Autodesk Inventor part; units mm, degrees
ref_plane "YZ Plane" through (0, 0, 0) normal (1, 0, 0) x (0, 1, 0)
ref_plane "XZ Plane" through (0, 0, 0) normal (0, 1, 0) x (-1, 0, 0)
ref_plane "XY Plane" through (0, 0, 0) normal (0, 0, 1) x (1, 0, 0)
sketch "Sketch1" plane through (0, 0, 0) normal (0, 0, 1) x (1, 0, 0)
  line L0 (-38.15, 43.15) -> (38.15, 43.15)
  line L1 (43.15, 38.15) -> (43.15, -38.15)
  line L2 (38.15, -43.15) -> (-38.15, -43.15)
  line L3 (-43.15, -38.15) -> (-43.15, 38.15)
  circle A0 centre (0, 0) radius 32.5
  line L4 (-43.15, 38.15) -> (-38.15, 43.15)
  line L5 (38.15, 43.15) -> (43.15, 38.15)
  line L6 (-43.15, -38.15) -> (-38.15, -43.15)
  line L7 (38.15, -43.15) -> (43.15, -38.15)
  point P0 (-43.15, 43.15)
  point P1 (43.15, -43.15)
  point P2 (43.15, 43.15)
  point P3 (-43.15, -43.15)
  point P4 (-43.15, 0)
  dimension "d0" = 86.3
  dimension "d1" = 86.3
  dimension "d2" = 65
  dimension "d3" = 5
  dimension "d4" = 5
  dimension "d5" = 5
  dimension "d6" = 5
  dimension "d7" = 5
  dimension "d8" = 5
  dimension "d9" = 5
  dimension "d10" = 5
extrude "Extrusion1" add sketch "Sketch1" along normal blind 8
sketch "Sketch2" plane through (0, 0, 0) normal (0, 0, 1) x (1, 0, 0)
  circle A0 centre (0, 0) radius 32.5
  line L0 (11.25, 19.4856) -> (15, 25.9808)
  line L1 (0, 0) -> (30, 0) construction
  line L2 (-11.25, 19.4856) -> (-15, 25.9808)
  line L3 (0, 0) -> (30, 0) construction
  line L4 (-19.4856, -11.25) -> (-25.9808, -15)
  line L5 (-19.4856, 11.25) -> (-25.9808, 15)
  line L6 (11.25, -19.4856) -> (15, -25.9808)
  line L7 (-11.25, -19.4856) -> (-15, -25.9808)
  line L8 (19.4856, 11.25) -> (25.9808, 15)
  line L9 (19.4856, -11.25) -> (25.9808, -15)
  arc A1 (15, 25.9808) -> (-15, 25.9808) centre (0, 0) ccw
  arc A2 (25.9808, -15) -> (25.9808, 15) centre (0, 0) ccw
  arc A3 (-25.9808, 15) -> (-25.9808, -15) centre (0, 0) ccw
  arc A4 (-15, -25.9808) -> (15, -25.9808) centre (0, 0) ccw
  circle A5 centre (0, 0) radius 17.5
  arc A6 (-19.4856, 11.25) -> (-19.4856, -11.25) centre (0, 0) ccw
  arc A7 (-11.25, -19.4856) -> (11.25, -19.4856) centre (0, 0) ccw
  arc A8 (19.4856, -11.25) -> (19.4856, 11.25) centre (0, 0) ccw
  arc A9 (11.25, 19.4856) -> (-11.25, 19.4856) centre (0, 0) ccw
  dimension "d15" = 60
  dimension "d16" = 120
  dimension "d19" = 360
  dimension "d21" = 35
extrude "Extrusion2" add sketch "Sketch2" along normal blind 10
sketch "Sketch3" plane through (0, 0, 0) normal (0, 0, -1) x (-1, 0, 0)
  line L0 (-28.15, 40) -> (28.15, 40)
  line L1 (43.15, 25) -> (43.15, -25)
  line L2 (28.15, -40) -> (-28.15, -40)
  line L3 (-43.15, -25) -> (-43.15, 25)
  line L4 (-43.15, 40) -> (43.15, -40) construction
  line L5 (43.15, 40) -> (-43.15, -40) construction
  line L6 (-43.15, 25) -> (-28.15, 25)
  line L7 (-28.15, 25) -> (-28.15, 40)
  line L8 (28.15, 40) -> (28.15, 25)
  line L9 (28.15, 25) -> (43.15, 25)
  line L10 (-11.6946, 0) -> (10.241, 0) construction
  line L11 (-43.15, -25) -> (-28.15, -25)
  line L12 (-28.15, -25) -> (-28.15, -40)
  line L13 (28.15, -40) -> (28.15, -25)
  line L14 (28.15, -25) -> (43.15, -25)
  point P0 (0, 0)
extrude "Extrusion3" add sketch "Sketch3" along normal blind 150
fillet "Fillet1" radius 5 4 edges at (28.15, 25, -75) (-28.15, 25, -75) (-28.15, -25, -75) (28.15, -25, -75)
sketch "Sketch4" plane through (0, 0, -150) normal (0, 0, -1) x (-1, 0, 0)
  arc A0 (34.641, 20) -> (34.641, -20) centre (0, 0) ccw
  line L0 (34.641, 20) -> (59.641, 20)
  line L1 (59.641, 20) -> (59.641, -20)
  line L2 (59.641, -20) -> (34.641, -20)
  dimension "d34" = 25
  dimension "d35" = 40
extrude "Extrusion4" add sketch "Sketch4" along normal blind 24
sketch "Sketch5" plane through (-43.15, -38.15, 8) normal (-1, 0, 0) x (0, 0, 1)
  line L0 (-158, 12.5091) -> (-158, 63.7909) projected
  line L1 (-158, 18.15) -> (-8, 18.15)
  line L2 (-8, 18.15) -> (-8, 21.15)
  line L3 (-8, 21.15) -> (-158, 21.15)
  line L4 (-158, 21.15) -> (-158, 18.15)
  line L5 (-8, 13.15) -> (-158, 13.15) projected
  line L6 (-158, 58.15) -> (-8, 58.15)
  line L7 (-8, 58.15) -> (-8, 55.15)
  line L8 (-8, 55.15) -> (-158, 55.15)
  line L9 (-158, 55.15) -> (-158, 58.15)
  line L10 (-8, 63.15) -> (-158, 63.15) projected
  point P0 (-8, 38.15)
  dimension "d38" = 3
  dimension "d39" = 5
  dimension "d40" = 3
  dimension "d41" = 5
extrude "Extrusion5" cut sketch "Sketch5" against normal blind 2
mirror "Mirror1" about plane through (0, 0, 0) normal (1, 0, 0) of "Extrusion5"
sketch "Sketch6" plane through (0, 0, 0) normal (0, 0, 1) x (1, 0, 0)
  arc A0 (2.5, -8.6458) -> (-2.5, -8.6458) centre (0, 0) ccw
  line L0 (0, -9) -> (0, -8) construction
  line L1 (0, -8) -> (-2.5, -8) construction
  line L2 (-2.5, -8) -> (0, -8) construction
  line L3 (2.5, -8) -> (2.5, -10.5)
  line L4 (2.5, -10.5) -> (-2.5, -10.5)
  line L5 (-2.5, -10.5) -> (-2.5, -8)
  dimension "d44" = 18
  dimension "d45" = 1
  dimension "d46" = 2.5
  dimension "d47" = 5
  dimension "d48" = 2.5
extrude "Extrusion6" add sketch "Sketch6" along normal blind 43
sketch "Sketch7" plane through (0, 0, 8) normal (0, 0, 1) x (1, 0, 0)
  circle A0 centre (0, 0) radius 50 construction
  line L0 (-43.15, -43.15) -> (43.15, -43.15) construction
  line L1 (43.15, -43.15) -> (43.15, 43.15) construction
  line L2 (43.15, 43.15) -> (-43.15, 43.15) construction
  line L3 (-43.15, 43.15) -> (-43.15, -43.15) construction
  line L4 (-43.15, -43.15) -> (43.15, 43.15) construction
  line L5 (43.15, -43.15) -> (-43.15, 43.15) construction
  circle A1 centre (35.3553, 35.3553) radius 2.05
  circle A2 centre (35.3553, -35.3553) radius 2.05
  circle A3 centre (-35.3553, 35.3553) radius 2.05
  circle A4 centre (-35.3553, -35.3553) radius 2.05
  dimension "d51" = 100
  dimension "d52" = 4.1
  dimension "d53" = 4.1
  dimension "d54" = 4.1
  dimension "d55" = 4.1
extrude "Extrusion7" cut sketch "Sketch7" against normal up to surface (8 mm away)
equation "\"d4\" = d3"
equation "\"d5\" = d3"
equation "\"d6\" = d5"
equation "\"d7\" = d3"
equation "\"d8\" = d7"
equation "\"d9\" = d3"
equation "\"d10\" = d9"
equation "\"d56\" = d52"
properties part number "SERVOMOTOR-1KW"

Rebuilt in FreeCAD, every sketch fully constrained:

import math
import FreeCAD as App
import Part
import Sketcher
from FreeCAD import Vector
Q = App.Units.Quantity


def edges_at(feature, points):
    """Names of the edges that pass closest to the given points."""
    edges = feature.Shape.Edges
    near = lambda p: min(range(len(edges)), key=lambda i: edges[i].distToShape(Part.Vertex(*p))[0])
    return sorted({f"Edge{near(p) + 1}" for p in points})

doc = App.newDocument("Part")
params = doc.addObject("Spreadsheet::Sheet", "Params")
for row, (alias, value) in enumerate([
    ("sketch1_diameter", "65 mm"),
    ("pad1_length", "8 mm"),
    ("sketch2_diameter", "35 mm"),
    ("sketch2_radius", "30 mm"),
    ("sketch2_diameter2", "65 mm"),
    ("sketch2_radius2", "22.5 mm"),
    ("pad2_length", "10 mm"),
    ("sketch3_width", "15 mm"),
    ("sketch3_height", "50 mm"),
    ("sketch3_width2", "56.3 mm"),
    ("pad3_length", "150 mm"),
    ("fillet_radius", "5 mm"),
    ("sketch4_radius", "40 mm"),
    ("sketch4_width", "25 mm"),
    ("sketch4_height", "40 mm"),
    ("pad4_length", "24 mm"),
    ("sketch5_width", "3 mm"),
    ("sketch5_height", "150 mm"),
    ("pocket1_length", "2 mm"),
    ("sketch6_radius", "9 mm"),
    ("sketch6_width", "5 mm"),
    ("pad5_length", "43 mm"),
    ("sketch7_diameter", "4.1 mm"),
    ("pocket2_length", "8 mm"),
], start=1):
    params.set(f"A{row}", alias)
    params.set(f"B{row}", "=" + value)
    params.setAlias(f"B{row}", alias)

body = doc.addObject("PartDesign::Body", "Body")

sketch1 = body.newObject("Sketcher::SketchObject", "Sketch")
sketch1.AttachmentSupport = (doc.getObject("XY_Plane"), [""])
sketch1.MapMode = "FlatFace"
sketch1.addGeometry([
    Part.LineSegment(Vector(38.15, 43.15, 0), Vector(-38.15, 43.15, 0)),
    Part.LineSegment(Vector(-38.15, 43.15, 0), Vector(-43.15, 38.15, 0)),
    Part.LineSegment(Vector(-43.15, 38.15, 0), Vector(-43.15, -38.15, 0)),
    Part.LineSegment(Vector(-43.15, -38.15, 0), Vector(-38.15, -43.15, 0)),
    Part.LineSegment(Vector(-38.15, -43.15, 0), Vector(38.15, -43.15, 0)),
    Part.LineSegment(Vector(38.15, -43.15, 0), Vector(43.15, -38.15, 0)),
    Part.LineSegment(Vector(43.15, -38.15, 0), Vector(43.15, 38.15, 0)),
    Part.LineSegment(Vector(43.15, 38.15, 0), Vector(38.15, 43.15, 0)),
    Part.Circle(Vector(0, 0, 0), Vector(0, 0, 1), 32.5),
], False)
sketch1.addConstraint([
    Sketcher.Constraint("Coincident", 0, 2, 1, 1),
    Sketcher.Constraint("Coincident", 1, 2, 2, 1),
    Sketcher.Constraint("Coincident", 2, 2, 3, 1),
    Sketcher.Constraint("Coincident", 3, 2, 4, 1),
    Sketcher.Constraint("Coincident", 4, 2, 5, 1),
    Sketcher.Constraint("Coincident", 5, 2, 6, 1),
    Sketcher.Constraint("Coincident", 6, 2, 7, 1),
    Sketcher.Constraint("Coincident", 7, 2, 0, 1),
    Sketcher.Constraint("Horizontal", 0),
    Sketcher.Constraint("Vertical", 2),
    Sketcher.Constraint("Horizontal", 4),
    Sketcher.Constraint("Vertical", 6),
    Sketcher.Constraint("Coincident", 8, 3, -1, 1),
    Sketcher.Constraint("Symmetric", 0, 2, 4, 2, -1, 1),
    Sketcher.Constraint("Symmetric", 1, 2, 5, 2, -1, 1),
    Sketcher.Constraint("Perpendicular", 1, 3),
    Sketcher.Constraint("Perpendicular", 5, 7),
    Sketcher.Constraint("Horizontal", 2, 2, 5, 2),
    Sketcher.Constraint("Horizontal", 1, 2, 6, 2),
    Sketcher.Constraint("Vertical", 0, 2, 3, 2),
    Sketcher.Constraint("Equal", 4, 2),
    Sketcher.Constraint("Diameter", 8, 65.0),
    Sketcher.Constraint("DistanceX", 1, 2, 0, 2, 5.0),
    Sketcher.Constraint("DistanceY", 3, 2, 0, 2, 86.3),
])
sketch1.setExpression("Constraints[21]", "Params.sketch1_diameter")
pad1 = body.newObject("PartDesign::Pad", "Pad")
pad1.Profile = sketch1
pad1.setExpression("Length", "Params.pad1_length")

sketch2 = body.newObject("Sketcher::SketchObject", "Sketch001")
sketch2.AttachmentSupport = (doc.getObject("XY_Plane"), [""])
sketch2.MapMode = "FlatFace"
sketch2.addGeometry([
    Part.Circle(Vector(0, 0, 0), Vector(0, 0, 1), 32.5),
    Part.ArcOfCircle(Part.Circle(Vector(0, 0, 0), Vector(0, 0, 1), 22.500025), math.radians(-119.999964), math.radians(-60.000036)),
    Part.LineSegment(Vector(11.25, -19.4856, 0), Vector(15, -25.9808, 0)),
    Part.ArcOfCircle(Part.Circle(Vector(0, 0, 0), Vector(0, 0, 1), 30.000033), math.radians(-119.999964), math.radians(-60.000036)),
    Part.LineSegment(Vector(-15, -25.9808, 0), Vector(-11.25, -19.4856, 0)),
    Part.ArcOfCircle(Part.Circle(Vector(0, 0, 0), Vector(0, 0, 1), 22.500025), math.radians(150.000036), math.radians(209.999964)),
    Part.LineSegment(Vector(-19.4856, -11.25, 0), Vector(-25.9808, -15, 0)),
    Part.ArcOfCircle(Part.Circle(Vector(0, 0, 0), Vector(0, 0, 1), 30.000033), math.radians(150.000036), math.radians(209.999964)),
    Part.LineSegment(Vector(-25.9808, 15, 0), Vector(-19.4856, 11.25, 0)),
    Part.Circle(Vector(0, 0, 0), Vector(0, 0, 1), 17.5),
    Part.ArcOfCircle(Part.Circle(Vector(0, 0, 0), Vector(0, 0, 1), 22.500025), math.radians(-29.999964), math.radians(29.999964)),
    Part.LineSegment(Vector(19.4856, 11.25, 0), Vector(25.9808, 15, 0)),
    Part.ArcOfCircle(Part.Circle(Vector(0, 0, 0), Vector(0, 0, 1), 30.000033), math.radians(-29.999964), math.radians(29.999964)),
    Part.LineSegment(Vector(25.9808, -15, 0), Vector(19.4856, -11.25, 0)),
    Part.LineSegment(Vector(15, 25.9808, 0), Vector(11.25, 19.4856, 0)),
    Part.ArcOfCircle(Part.Circle(Vector(0, 0, 0), Vector(0, 0, 1), 22.500025), math.radians(60.000036), math.radians(119.999964)),
    Part.LineSegment(Vector(-11.25, 19.4856, 0), Vector(-15, 25.9808, 0)),
    Part.ArcOfCircle(Part.Circle(Vector(0, 0, 0), Vector(0, 0, 1), 30.000033), math.radians(60.000036), math.radians(119.999964)),
], False)
sketch2.addConstraint([
    Sketcher.Constraint("Coincident", 1, 2, 2, 1),
    Sketcher.Constraint("Coincident", 2, 2, 3, 2),
    Sketcher.Constraint("Coincident", 3, 1, 4, 1),
    Sketcher.Constraint("Coincident", 4, 2, 1, 1),
    Sketcher.Constraint("Coincident", 5, 2, 6, 1),
    Sketcher.Constraint("Coincident", 6, 2, 7, 2),
    Sketcher.Constraint("Coincident", 7, 1, 8, 1),
    Sketcher.Constraint("Coincident", 8, 2, 5, 1),
    Sketcher.Constraint("Coincident", 10, 2, 11, 1),
    Sketcher.Constraint("Coincident", 11, 2, 12, 2),
    Sketcher.Constraint("Coincident", 12, 1, 13, 1),
    Sketcher.Constraint("Coincident", 13, 2, 10, 1),
    Sketcher.Constraint("Coincident", 14, 2, 15, 1),
    Sketcher.Constraint("Coincident", 15, 2, 16, 1),
    Sketcher.Constraint("Coincident", 16, 2, 17, 2),
    Sketcher.Constraint("Coincident", 17, 1, 14, 1),
    Sketcher.Constraint("Coincident", 0, 3, -1, 1),
    Sketcher.Constraint("Coincident", 1, 3, -1, 1),
    Sketcher.Constraint("Coincident", 3, 3, -1, 1),
    Sketcher.Constraint("Coincident", 5, 3, -1, 1),
    Sketcher.Constraint("Coincident", 7, 3, -1, 1),
    Sketcher.Constraint("Coincident", 9, 3, -1, 1),
    Sketcher.Constraint("Coincident", 10, 3, -1, 1),
    Sketcher.Constraint("Coincident", 12, 3, -1, 1),
    Sketcher.Constraint("Coincident", 15, 3, -1, 1),
    Sketcher.Constraint("Coincident", 17, 3, -1, 1),
    Sketcher.Constraint("Equal", 1, 5),
    Sketcher.Constraint("Equal", 3, 7),
    Sketcher.Constraint("Equal", 5, 10),
    Sketcher.Constraint("Equal", 7, 12),
    Sketcher.Constraint("Equal", 10, 15),
    Sketcher.Constraint("Equal", 12, 17),
    Sketcher.Constraint("Perpendicular", 2, 6),
    Sketcher.Constraint("Perpendicular", 4, 8),
    Sketcher.Constraint("Parallel", 6, 11),
    Sketcher.Constraint("Parallel", 8, 13),
    Sketcher.Constraint("Perpendicular", 13, 14),
    Sketcher.Constraint("Perpendicular", 11, 16),
    Sketcher.Constraint("Horizontal", 2, 2, 3, 1),
    Sketcher.Constraint("Horizontal", 1, 2, 4, 2),
    Sketcher.Constraint("Horizontal", 8, 2, 10, 2),
    Sketcher.Constraint("Horizontal", 6, 2, 12, 1),
    Sketcher.Constraint("Horizontal", 14, 2, 15, 2),
    Sketcher.Constraint("Vertical", 6, 2, 7, 1),
    Sketcher.Constraint("Vertical", 1, 2, 14, 2),
    Sketcher.Constraint("Diameter", 9, 35.0),
    Sketcher.Constraint("Radius", 3, 30.0),
    Sketcher.Constraint("Angle", 2, Q("-60 deg")),
    Sketcher.Constraint("Diameter", 0, 65.0),
    Sketcher.Constraint("Radius", 1, 22.5),
    Sketcher.Constraint("DistanceX", -1, 1, 2, 2, 15.0),
    Sketcher.Constraint("DistanceY", 6, 2, -1, 1, 15.0),
])
sketch2.setExpression("Constraints[45]", "Params.sketch2_diameter")
sketch2.setExpression("Constraints[46]", "Params.sketch2_radius")
sketch2.setExpression("Constraints[48]", "Params.sketch2_diameter2")
sketch2.setExpression("Constraints[49]", "Params.sketch2_radius2")
pad2 = body.newObject("PartDesign::Pad", "Pad001")
pad2.Profile = sketch2
pad2.setExpression("Length", "Params.pad2_length")

sketch3 = body.newObject("Sketcher::SketchObject", "Sketch002")
sketch3.AttachmentSupport = (doc.getObject("XY_Plane"), [""])
sketch3.MapMode = "FlatFace"
sketch3.addGeometry([
    Part.LineSegment(Vector(-28.15, 40, 0), Vector(28.15, 40, 0)),
    Part.LineSegment(Vector(28.15, 40, 0), Vector(28.15, 25, 0)),
    Part.LineSegment(Vector(28.15, 25, 0), Vector(43.15, 25, 0)),
    Part.LineSegment(Vector(43.15, 25, 0), Vector(43.15, -25, 0)),
    Part.LineSegment(Vector(43.15, -25, 0), Vector(28.15, -25, 0)),
    Part.LineSegment(Vector(28.15, -25, 0), Vector(28.15, -40, 0)),
    Part.LineSegment(Vector(28.15, -40, 0), Vector(-28.15, -40, 0)),
    Part.LineSegment(Vector(-28.15, -40, 0), Vector(-28.15, -25, 0)),
    Part.LineSegment(Vector(-28.15, -25, 0), Vector(-43.15, -25, 0)),
    Part.LineSegment(Vector(-43.15, -25, 0), Vector(-43.15, 25, 0)),
    Part.LineSegment(Vector(-43.15, 25, 0), Vector(-28.15, 25, 0)),
    Part.LineSegment(Vector(-28.15, 25, 0), Vector(-28.15, 40, 0)),
], False)
sketch3.addConstraint([
    Sketcher.Constraint("Coincident", 0, 2, 1, 1),
    Sketcher.Constraint("Coincident", 1, 2, 2, 1),
    Sketcher.Constraint("Coincident", 2, 2, 3, 1),
    Sketcher.Constraint("Coincident", 3, 2, 4, 1),
    Sketcher.Constraint("Coincident", 4, 2, 5, 1),
    Sketcher.Constraint("Coincident", 5, 2, 6, 1),
    Sketcher.Constraint("Coincident", 6, 2, 7, 1),
    Sketcher.Constraint("Coincident", 7, 2, 8, 1),
    Sketcher.Constraint("Coincident", 8, 2, 9, 1),
    Sketcher.Constraint("Coincident", 9, 2, 10, 1),
    Sketcher.Constraint("Coincident", 10, 2, 11, 1),
    Sketcher.Constraint("Coincident", 11, 2, 0, 1),
    Sketcher.Constraint("Horizontal", 0),
    Sketcher.Constraint("Vertical", 1),
    Sketcher.Constraint("Horizontal", 2),
    Sketcher.Constraint("Vertical", 3),
    Sketcher.Constraint("Horizontal", 4),
    Sketcher.Constraint("Vertical", 5),
    Sketcher.Constraint("Horizontal", 6),
    Sketcher.Constraint("Vertical", 7),
    Sketcher.Constraint("Horizontal", 8),
    Sketcher.Constraint("Vertical", 9),
    Sketcher.Constraint("Horizontal", 10),
    Sketcher.Constraint("Vertical", 11),
    Sketcher.Constraint("Symmetric", 0, 2, 6, 2, -1, 1),
    Sketcher.Constraint("Symmetric", 2, 2, 8, 2, -1, 1),
    Sketcher.Constraint("Symmetric", 4, 2, 10, 2, -1, 1),
    Sketcher.Constraint("Symmetric", 4, 2, 7, 2, -2),
    Sketcher.Constraint("Equal", 10, 1),
    Sketcher.Constraint("DistanceX", 2, 1, 2, 2, 15.0),
    Sketcher.Constraint("DistanceY", 3, 2, 3, 1, 50.0),
    Sketcher.Constraint("DistanceX", 0, 1, 0, 2, 56.3),
])
sketch3.setExpression("Constraints[29]", "Params.sketch3_width")
sketch3.setExpression("Constraints[30]", "Params.sketch3_height")
sketch3.setExpression("Constraints[31]", "Params.sketch3_width2")
pad3 = body.newObject("PartDesign::Pad", "Pad002")
pad3.Profile = sketch3
pad3.setExpression("Length", "Params.pad3_length")
pad3.Reversed = True
doc.recompute()

fillet = body.newObject("PartDesign::Fillet", "Fillet")
fillet.Base = (pad3, edges_at(pad3, [
    (28.15, 25, -75),
    (-28.15, 25, -75),
    (-28.15, -25, -75),
    (28.15, -25, -75),
]))
fillet.setExpression("Radius", "Params.fillet_radius")

sketch4 = body.newObject("Sketcher::SketchObject", "Sketch003")
sketch4.AttachmentSupport = (doc.getObject("XY_Plane"), [""])
sketch4.MapMode = "FlatFace"
sketch4.AttachmentOffset = App.Placement(Vector(0, 0, -150), App.Rotation())
sketch4.addGeometry([
    Part.LineSegment(Vector(-59.641, 20, 0), Vector(-34.641, 20, 0)),
    Part.ArcOfCircle(Part.Circle(Vector(0, 0, 0), Vector(0, 0, 1), 39.999986), math.radians(-149.999988), math.radians(149.999988)),
    Part.LineSegment(Vector(-34.641, -20, 0), Vector(-59.641, -20, 0)),
    Part.LineSegment(Vector(-59.641, -20, 0), Vector(-59.641, 20, 0)),
], False)
sketch4.addConstraint([
    Sketcher.Constraint("Coincident", 0, 2, 1, 2),
    Sketcher.Constraint("Coincident", 1, 1, 2, 1),
    Sketcher.Constraint("Coincident", 2, 2, 3, 1),
    Sketcher.Constraint("Coincident", 3, 2, 0, 1),
    Sketcher.Constraint("Horizontal", 0),
    Sketcher.Constraint("Horizontal", 2),
    Sketcher.Constraint("Vertical", 3),
    Sketcher.Constraint("Coincident", 1, 3, -1, 1),
    Sketcher.Constraint("Vertical", 0, 2, 1, 1),
    Sketcher.Constraint("Radius", 1, 40.0),
    Sketcher.Constraint("DistanceX", 0, 1, 0, 2, 25.0),
    Sketcher.Constraint("DistanceY", 3, 1, 3, 2, 40.0),
])
sketch4.setExpression("Constraints[9]", "Params.sketch4_radius")
sketch4.setExpression("Constraints[10]", "Params.sketch4_width")
sketch4.setExpression("Constraints[11]", "Params.sketch4_height")
pad4 = body.newObject("PartDesign::Pad", "Pad003")
pad4.Profile = sketch4
pad4.setExpression("Length", "Params.pad4_length")
pad4.Reversed = True

sketch5 = body.newObject("Sketcher::SketchObject", "Sketch004")
sketch5.AttachmentSupport = (doc.getObject("YZ_Plane"), [""])
sketch5.MapMode = "FlatFace"
sketch5.AttachmentOffset = App.Placement(Vector(0, 0, -43.15), App.Rotation())
sketch5.addGeometry([
    Part.LineSegment(Vector(20, -150, 0), Vector(17, -150, 0)),
    Part.LineSegment(Vector(17, -150, 0), Vector(17, 0, 0)),
    Part.LineSegment(Vector(17, 0, 0), Vector(20, 0, 0)),
    Part.LineSegment(Vector(20, 0, 0), Vector(20, -150, 0)),
    Part.LineSegment(Vector(-17, -150, 0), Vector(-20, -150, 0)),
    Part.LineSegment(Vector(-20, -150, 0), Vector(-20, 0, 0)),
    Part.LineSegment(Vector(-20, 0, 0), Vector(-17, 0, 0)),
    Part.LineSegment(Vector(-17, 0, 0), Vector(-17, -150, 0)),
], False)
sketch5.addConstraint([
    Sketcher.Constraint("Coincident", 0, 2, 1, 1),
    Sketcher.Constraint("Coincident", 1, 2, 2, 1),
    Sketcher.Constraint("Coincident", 2, 2, 3, 1),
    Sketcher.Constraint("Coincident", 3, 2, 0, 1),
    Sketcher.Constraint("Coincident", 4, 2, 5, 1),
    Sketcher.Constraint("Coincident", 5, 2, 6, 1),
    Sketcher.Constraint("Coincident", 6, 2, 7, 1),
    Sketcher.Constraint("Coincident", 7, 2, 4, 1),
    Sketcher.Constraint("Horizontal", 0),
    Sketcher.Constraint("Vertical", 1),
    Sketcher.Constraint("Horizontal", 2),
    Sketcher.Constraint("Vertical", 3),
    Sketcher.Constraint("Horizontal", 4),
    Sketcher.Constraint("Vertical", 5),
    Sketcher.Constraint("Horizontal", 6),
    Sketcher.Constraint("Vertical", 7),
    Sketcher.Constraint("Symmetric", 2, 2, 5, 2, -1, 1),
    Sketcher.Constraint("Symmetric", 1, 2, 6, 2, -2),
    Sketcher.Constraint("Horizontal", 3, 2, 4, 2),
    Sketcher.Constraint("DistanceX", 0, 2, 0, 1, 3.0),
    Sketcher.Constraint("DistanceY", 1, 1, 1, 2, 150.0),
    Sketcher.Constraint("DistanceX", -1, 1, 0, 2, 17.0),
])
sketch5.setExpression("Constraints[19]", "Params.sketch5_width")
sketch5.setExpression("Constraints[20]", "Params.sketch5_height")
pocket1 = body.newObject("PartDesign::Pocket", "Pocket")
pocket1.Profile = sketch5
pocket1.setExpression("Length", "Params.pocket1_length")
pocket1.Reversed = True
doc.recompute()

mirrored = body.newObject("PartDesign::Mirrored", "Mirrored")
mirrored.Originals = [pocket1]
mirrored.MirrorPlane = (doc.getObject("YZ_Plane"), [""])
body.Tip = mirrored

sketch6 = body.newObject("Sketcher::SketchObject", "Sketch005")
sketch6.AttachmentSupport = (doc.getObject("XY_Plane"), [""])
sketch6.MapMode = "FlatFace"
sketch6.addGeometry([
    Part.LineSegment(Vector(2.5, -10.5, 0), Vector(2.5, -8.6458, 0)),
    Part.ArcOfCircle(Part.Circle(Vector(0, 0, 0), Vector(0, 0, 1), 8.999992), math.radians(-73.872365), math.radians(253.872365)),
    Part.LineSegment(Vector(-2.5, -8.6458, 0), Vector(-2.5, -10.5, 0)),
    Part.LineSegment(Vector(-2.5, -10.5, 0), Vector(2.5, -10.5, 0)),
], False)
sketch6.addConstraint([
    Sketcher.Constraint("Coincident", 0, 2, 1, 1),
    Sketcher.Constraint("Coincident", 1, 2, 2, 1),
    Sketcher.Constraint("Coincident", 2, 2, 3, 1),
    Sketcher.Constraint("Coincident", 3, 2, 0, 1),
    Sketcher.Constraint("Vertical", 0),
    Sketcher.Constraint("Vertical", 2),
    Sketcher.Constraint("Horizontal", 3),
    Sketcher.Constraint("Coincident", 1, 3, -1, 1),
    Sketcher.Constraint("Horizontal", 0, 2, 1, 2),
    Sketcher.Constraint("Radius", 1, 9.0),
    Sketcher.Constraint("DistanceX", 3, 1, 3, 2, 5.0),
    Sketcher.Constraint("DistanceY", 2, 2, -1, 1, 10.5),
])
sketch6.setExpression("Constraints[9]", "Params.sketch6_radius")
sketch6.setExpression("Constraints[10]", "Params.sketch6_width")
pad5 = body.newObject("PartDesign::Pad", "Pad004")
pad5.Profile = sketch6
pad5.setExpression("Length", "Params.pad5_length")

sketch7 = body.newObject("Sketcher::SketchObject", "Sketch006")
sketch7.AttachmentSupport = (doc.getObject("XY_Plane"), [""])
sketch7.MapMode = "FlatFace"
sketch7.AttachmentOffset = App.Placement(Vector(0, 0, 8), App.Rotation())
sketch7.addGeometry([
    Part.Circle(Vector(35.3553, 35.3553, 0), Vector(0, 0, 1), 2.05),
    Part.Circle(Vector(35.3553, -35.3553, 0), Vector(0, 0, 1), 2.05),
    Part.Circle(Vector(-35.3553, 35.3553, 0), Vector(0, 0, 1), 2.05),
    Part.Circle(Vector(-35.3553, -35.3553, 0), Vector(0, 0, 1), 2.05),
], False)
sketch7.addConstraint([
    Sketcher.Constraint("Equal", 0, 1),
    Sketcher.Constraint("Equal", 1, 2),
    Sketcher.Constraint("Equal", 2, 3),
    Sketcher.Constraint("Symmetric", 1, 3, 2, 3, -1, 1),
    Sketcher.Constraint("Symmetric", 0, 3, 3, 3, -1, 1),
    Sketcher.Constraint("Symmetric", 0, 3, 2, 3, -2),
    Sketcher.Constraint("Diameter", 0, 4.1),
    Sketcher.Constraint("DistanceX", -1, 1, 0, 3, 35.3553),
    Sketcher.Constraint("DistanceY", -1, 1, 0, 3, 35.3553),
])
sketch7.setExpression("Constraints[6]", "Params.sketch7_diameter")
pocket2 = body.newObject("PartDesign::Pocket", "Pocket001")
pocket2.Profile = sketch7
pocket2.setExpression("Length", "Params.pocket2_length")

doc.recompute()
